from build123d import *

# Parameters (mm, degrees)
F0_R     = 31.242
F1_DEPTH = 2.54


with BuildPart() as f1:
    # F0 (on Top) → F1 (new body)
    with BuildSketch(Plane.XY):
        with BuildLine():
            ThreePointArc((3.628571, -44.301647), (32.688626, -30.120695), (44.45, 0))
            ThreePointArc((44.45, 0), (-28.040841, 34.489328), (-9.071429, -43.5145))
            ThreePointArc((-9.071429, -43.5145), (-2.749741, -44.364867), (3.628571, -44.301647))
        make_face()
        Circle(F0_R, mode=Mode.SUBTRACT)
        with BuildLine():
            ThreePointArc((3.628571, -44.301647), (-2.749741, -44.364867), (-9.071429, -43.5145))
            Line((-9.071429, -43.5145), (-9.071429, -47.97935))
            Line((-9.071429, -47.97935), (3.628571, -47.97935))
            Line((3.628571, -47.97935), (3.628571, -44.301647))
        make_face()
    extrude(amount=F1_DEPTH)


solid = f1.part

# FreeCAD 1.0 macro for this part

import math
import FreeCAD as App
import Part
import Sketcher
from FreeCAD import Vector
Q = App.Units.Quantity

doc = App.newDocument("Part")
body = doc.addObject("PartDesign::Body", "Body")

sketch1 = body.newObject("Sketcher::SketchObject", "Sketch")
sketch1.AttachmentSupport = (doc.getObject("XY_Plane"), [""])
sketch1.MapMode = "FlatFace"
sketch1.addGeometry([
    Part.ArcOfCircle(Part.Circle(Vector(0, 0, 0), Vector(0, 0, 1), 44.4), math.radians(-85), math.radians(0)),
    Part.ArcOfCircle(Part.Circle(Vector(0, 0, 0), Vector(0, 0, 1), 44.5), math.radians(0), math.radians(258)),
    Part.LineSegment(Vector(-9.1, -43.5, 0), Vector(-9.1, -48, 0)),
    Part.LineSegment(Vector(-9.1, -48, 0), Vector(3.6, -48, 0)),
    Part.LineSegment(Vector(3.6, -48, 0), Vector(3.6, -44.3, 0)),
    Part.Circle(Vector(0, 0, 0), Vector(0, 0, 1), 31.2),
], False)
sketch1.addConstraint([
    Sketcher.Constraint("Tangent", 0, 2, 1, 1),
    Sketcher.Constraint("Coincident", 1, 2, 2, 1),
    Sketcher.Constraint("Coincident", 2, 2, 3, 1),
    Sketcher.Constraint("Coincident", 3, 2, 4, 1),
    Sketcher.Constraint("Coincident", 4, 2, 0, 1),
    Sketcher.Constraint("Vertical", 2),
    Sketcher.Constraint("Horizontal", 3),
    Sketcher.Constraint("Vertical", 4),
    Sketcher.Constraint("Coincident", 0, 3, -1, 1),
    Sketcher.Constraint("Coincident", 5, 3, -1, 1),
    Sketcher.Constraint("PointOnObject", 0, 2, -1),
    Sketcher.Constraint("Diameter", 5, Q("2.46 in")),
    Sketcher.Constraint("Radius", 0, Q("1.7499999 in")),
    Sketcher.Constraint("Radius", 1, Q("1.75 in")),
    Sketcher.Constraint("DistanceX", 3, 1, 3, 2, Q("0.5 in")),
    Sketcher.Constraint("DistanceY", 2, 2, 2, 1, Q("4.46485 mm")),
    Sketcher.Constraint("DistanceY", 1, 2, -1, 1, Q("43.5145 mm")),
])
pad1 = body.newObject("PartDesign::Pad", "Pad")
pad1.Profile = sketch1
pad1.Length = Q("0.1 in")

doc.recompute()
